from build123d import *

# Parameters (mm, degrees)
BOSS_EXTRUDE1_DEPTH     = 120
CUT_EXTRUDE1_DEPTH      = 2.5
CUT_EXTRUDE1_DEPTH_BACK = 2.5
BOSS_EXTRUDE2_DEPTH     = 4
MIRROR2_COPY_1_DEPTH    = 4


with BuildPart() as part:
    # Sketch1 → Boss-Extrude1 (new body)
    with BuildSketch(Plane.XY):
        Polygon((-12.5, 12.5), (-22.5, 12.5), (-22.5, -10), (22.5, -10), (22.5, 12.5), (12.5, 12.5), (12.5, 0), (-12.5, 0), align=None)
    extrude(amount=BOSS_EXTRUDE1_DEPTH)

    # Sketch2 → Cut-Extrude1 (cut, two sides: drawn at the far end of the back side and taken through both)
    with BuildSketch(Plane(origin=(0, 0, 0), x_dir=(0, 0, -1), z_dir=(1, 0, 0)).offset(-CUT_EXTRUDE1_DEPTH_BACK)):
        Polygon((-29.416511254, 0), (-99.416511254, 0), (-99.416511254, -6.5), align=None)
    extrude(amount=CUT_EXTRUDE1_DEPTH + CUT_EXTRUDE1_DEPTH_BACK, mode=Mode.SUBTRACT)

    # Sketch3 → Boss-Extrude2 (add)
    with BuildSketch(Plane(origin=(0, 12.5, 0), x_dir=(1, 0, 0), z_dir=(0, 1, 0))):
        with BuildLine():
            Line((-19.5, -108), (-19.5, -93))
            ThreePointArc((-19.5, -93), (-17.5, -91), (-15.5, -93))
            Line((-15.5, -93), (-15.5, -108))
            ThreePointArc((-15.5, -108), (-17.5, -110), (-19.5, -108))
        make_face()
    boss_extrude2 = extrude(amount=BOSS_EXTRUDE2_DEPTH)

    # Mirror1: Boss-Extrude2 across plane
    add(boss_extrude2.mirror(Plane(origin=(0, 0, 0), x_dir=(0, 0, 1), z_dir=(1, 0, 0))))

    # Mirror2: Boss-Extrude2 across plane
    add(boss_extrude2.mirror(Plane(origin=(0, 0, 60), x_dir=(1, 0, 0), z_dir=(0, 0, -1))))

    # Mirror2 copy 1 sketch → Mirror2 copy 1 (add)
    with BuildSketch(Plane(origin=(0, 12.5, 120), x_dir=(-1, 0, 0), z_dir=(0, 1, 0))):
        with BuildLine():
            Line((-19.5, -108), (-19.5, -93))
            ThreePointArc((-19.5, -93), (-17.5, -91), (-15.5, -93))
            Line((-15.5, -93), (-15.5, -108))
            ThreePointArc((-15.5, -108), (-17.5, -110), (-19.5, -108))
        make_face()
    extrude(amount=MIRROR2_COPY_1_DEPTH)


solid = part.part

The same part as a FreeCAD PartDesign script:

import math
import FreeCAD as App
import Part
import Sketcher
Q = App.Units.Quantity


def add_polygon(sketch, points):
    """Adds a closed chain of lines whose ends are joined by coincident constraints."""
    first, n = sketch.GeometryCount, len(points)
    for a, b in zip(points, points[1:] + points[:1]):
        sketch.addGeometry(Part.LineSegment(App.Vector(*a, 0), App.Vector(*b, 0)), False)
    for i in range(n):
        sketch.addConstraint(Sketcher.Constraint("Coincident", first + i, 2, first + (i + 1) % n, 1))

doc = App.newDocument("Part")
body = doc.addObject("PartDesign::Body", "Body")

sketch1 = doc.addObject("Sketcher::SketchObject", "Sketch")
body.addObject(sketch1)
sketch1.AttachmentSupport = (doc.XY_Plane, [""])
sketch1.MapMode = "FlatFace"
add_polygon(sketch1, [(-12, 12), (-22, 12), (-22, -10), (22, -10), (22, 12), (12, 12), (12, 0), (-12, 0)])
sketch1.addConstraint([
    Sketcher.Constraint("Horizontal", 0),
    Sketcher.Constraint("Vertical", 1),
    Sketcher.Constraint("Horizontal", 2),
    Sketcher.Constraint("Vertical", 3),
    Sketcher.Constraint("Horizontal", 4),
    Sketcher.Constraint("Vertical", 5),
    Sketcher.Constraint("Horizontal", 6),
    Sketcher.Constraint("Vertical", 7),
    Sketcher.Constraint("Symmetric", 5, 2, 6, 2, -1, 1),
    Sketcher.Constraint("Symmetric", 0, 2, 3, 2, -2),
    Sketcher.Constraint("DistanceX", 0, 2, 0, 1, Q("10 mm")),
    Sketcher.Constraint("DistanceX", 2, 1, 2, 2, Q("45 mm")),
    Sketcher.Constraint("DistanceY", 1, 2, 1, 1, Q("22.5 mm")),
    Sketcher.Constraint("DistanceY", 5, 2, 5, 1, Q("12.5 mm")),
])
pad1 = doc.addObject("PartDesign::Pad", "Pad")
body.addObject(pad1)
pad1.Profile = sketch1
pad1.Length = 120

sketch2 = doc.addObject("Sketcher::SketchObject", "Sketch001")
body.addObject(sketch2)
sketch2.AttachmentSupport = (doc.YZ_Plane, [""])
sketch2.MapMode = "FlatFace"
add_polygon(sketch2, [(0, 29), (0, 99), (-6, 99)])
sketch2.addConstraint([
    Sketcher.Constraint("Vertical", 0),
    Sketcher.Constraint("Horizontal", 1),
    Sketcher.Constraint("PointOnObject", 0, 2, -2),
    Sketcher.Constraint("DistanceY", 0, 1, 0, 2, Q("70 mm")),
    Sketcher.Constraint("DistanceX", 1, 2, 1, 1, Q("6.5 mm")),
    Sketcher.Constraint("DistanceY", -1, 1, 0, 2, Q("99.416511 mm")),
])
pocket1 = doc.addObject("PartDesign::Pocket", "Pocket")
body.addObject(pocket1)
pocket1.Profile = sketch2
pocket1.Type = "TwoLengths"
pocket1.Length = 2.5
pocket1.Length2 = 2.5
pocket1.Reversed = True

sketch3 = doc.addObject("Sketcher::SketchObject", "Sketch002")
body.addObject(sketch3)
sketch3.AttachmentSupport = (doc.XZ_Plane, [""])
sketch3.MapMode = "FlatFace"
sketch3.AttachmentOffset = App.Placement(App.Vector(0, 0, -12.5), App.Rotation())
sketch3.addGeometry([
    Part.LineSegment(App.Vector(-19.5, 93, 0), App.Vector(-19.5, 108, 0)),
    Part.ArcOfCircle(Part.Circle(App.Vector(-17.5, 108, 0), App.Vector(0, 0, 1), 2), math.radians(0), math.radians(180)),
    Part.LineSegment(App.Vector(-15.5, 108, 0), App.Vector(-15.5, 93, 0)),
    Part.ArcOfCircle(Part.Circle(App.Vector(-17.5, 93, 0), App.Vector(0, 0, 1), 2), math.radians(180), math.radians(360)),
], False)
sketch3.addConstraint([
    Sketcher.Constraint("Tangent", 0, 2, 1, 2),
    Sketcher.Constraint("Tangent", 1, 1, 2, 1),
    Sketcher.Constraint("Tangent", 2, 2, 3, 2),
    Sketcher.Constraint("Tangent", 3, 1, 0, 1),
    Sketcher.Constraint("Vertical", 0),
    Sketcher.Constraint("Vertical", 2),
    Sketcher.Constraint("Radius", 1, Q("2 mm")),
    Sketcher.Constraint("DistanceY", 0, 1, 0, 2, Q("15 mm")),
    Sketcher.Constraint("DistanceY", -1, 1, 1, 3, Q("108 mm")),
    Sketcher.Constraint("DistanceX", 1, 3, -1, 1, Q("17.5 mm")),
])
pad2 = doc.addObject("PartDesign::Pad", "Pad001")
body.addObject(pad2)
pad2.Profile = sketch3
pad2.Length = 4
pad2.Reversed = True
doc.recompute()

mirrored = doc.addObject("PartDesign::Mirrored", "Mirrored")
body.addObject(mirrored)
mirrored.Originals = [pad2]
mirrored.MirrorPlane = (doc.YZ_Plane, [""])
body.Tip = mirrored
doc.recompute()

datumplane = doc.addObject("PartDesign::Plane", "DatumPlane")
body.addObject(datumplane)
datumplane.AttachmentSupport = (doc.XY_Plane, [""])
datumplane.MapMode = "FlatFace"
datumplane.AttachmentOffset = App.Placement(App.Vector(0, 0, 60), App.Rotation())
mirrored2 = doc.addObject("PartDesign::Mirrored", "Mirrored001")
body.addObject(mirrored2)
mirrored2.Originals = [pad2]
mirrored2.MirrorPlane = (datumplane, [""])
body.Tip = mirrored2

sketch4 = doc.addObject("Sketcher::SketchObject", "Sketch003")
body.addObject(sketch4)
sketch4.AttachmentSupport = (doc.XZ_Plane, [""])
sketch4.MapMode = "FlatFace"
sketch4.AttachmentOffset = App.Placement(App.Vector(0, 0, -12.5), App.Rotation())
sketch4.addGeometry([
    Part.LineSegment(App.Vector(19.5, 27, 0), App.Vector(19.5, 12, 0)),
    Part.ArcOfCircle(Part.Circle(App.Vector(17.5, 12, 0), App.Vector(0, 0, 1), 2), math.radians(180), math.radians(360)),
    Part.LineSegment(App.Vector(15.5, 12, 0), App.Vector(15.5, 27, 0)),
    Part.ArcOfCircle(Part.Circle(App.Vector(17.5, 27, 0), App.Vector(0, 0, 1), 2), math.radians(0), math.radians(180)),
], False)
sketch4.addConstraint([
    Sketcher.Constraint("Tangent", 0, 2, 1, 2),
    Sketcher.Constraint("Tangent", 1, 1, 2, 1),
    Sketcher.Constraint("Tangent", 2, 2, 3, 2),
    Sketcher.Constraint("Tangent", 3, 1, 0, 1),
    Sketcher.Constraint("Vertical", 0),
    Sketcher.Constraint("Vertical", 2),
    Sketcher.Constraint("Radius", 1, Q("2 mm")),
    Sketcher.Constraint("DistanceY", 0, 2, 0, 1, Q("15 mm")),
    Sketcher.Constraint("DistanceY", -1, 1, 1, 3, Q("12 mm")),
    Sketcher.Constraint("DistanceX", -1, 1, 1, 3, Q("17.5 mm")),
])
pad3 = doc.addObject("PartDesign::Pad", "Pad002")
body.addObject(pad3)
pad3.Profile = sketch4
pad3.Length = 4
pad3.Reversed = True

doc.recompute()
